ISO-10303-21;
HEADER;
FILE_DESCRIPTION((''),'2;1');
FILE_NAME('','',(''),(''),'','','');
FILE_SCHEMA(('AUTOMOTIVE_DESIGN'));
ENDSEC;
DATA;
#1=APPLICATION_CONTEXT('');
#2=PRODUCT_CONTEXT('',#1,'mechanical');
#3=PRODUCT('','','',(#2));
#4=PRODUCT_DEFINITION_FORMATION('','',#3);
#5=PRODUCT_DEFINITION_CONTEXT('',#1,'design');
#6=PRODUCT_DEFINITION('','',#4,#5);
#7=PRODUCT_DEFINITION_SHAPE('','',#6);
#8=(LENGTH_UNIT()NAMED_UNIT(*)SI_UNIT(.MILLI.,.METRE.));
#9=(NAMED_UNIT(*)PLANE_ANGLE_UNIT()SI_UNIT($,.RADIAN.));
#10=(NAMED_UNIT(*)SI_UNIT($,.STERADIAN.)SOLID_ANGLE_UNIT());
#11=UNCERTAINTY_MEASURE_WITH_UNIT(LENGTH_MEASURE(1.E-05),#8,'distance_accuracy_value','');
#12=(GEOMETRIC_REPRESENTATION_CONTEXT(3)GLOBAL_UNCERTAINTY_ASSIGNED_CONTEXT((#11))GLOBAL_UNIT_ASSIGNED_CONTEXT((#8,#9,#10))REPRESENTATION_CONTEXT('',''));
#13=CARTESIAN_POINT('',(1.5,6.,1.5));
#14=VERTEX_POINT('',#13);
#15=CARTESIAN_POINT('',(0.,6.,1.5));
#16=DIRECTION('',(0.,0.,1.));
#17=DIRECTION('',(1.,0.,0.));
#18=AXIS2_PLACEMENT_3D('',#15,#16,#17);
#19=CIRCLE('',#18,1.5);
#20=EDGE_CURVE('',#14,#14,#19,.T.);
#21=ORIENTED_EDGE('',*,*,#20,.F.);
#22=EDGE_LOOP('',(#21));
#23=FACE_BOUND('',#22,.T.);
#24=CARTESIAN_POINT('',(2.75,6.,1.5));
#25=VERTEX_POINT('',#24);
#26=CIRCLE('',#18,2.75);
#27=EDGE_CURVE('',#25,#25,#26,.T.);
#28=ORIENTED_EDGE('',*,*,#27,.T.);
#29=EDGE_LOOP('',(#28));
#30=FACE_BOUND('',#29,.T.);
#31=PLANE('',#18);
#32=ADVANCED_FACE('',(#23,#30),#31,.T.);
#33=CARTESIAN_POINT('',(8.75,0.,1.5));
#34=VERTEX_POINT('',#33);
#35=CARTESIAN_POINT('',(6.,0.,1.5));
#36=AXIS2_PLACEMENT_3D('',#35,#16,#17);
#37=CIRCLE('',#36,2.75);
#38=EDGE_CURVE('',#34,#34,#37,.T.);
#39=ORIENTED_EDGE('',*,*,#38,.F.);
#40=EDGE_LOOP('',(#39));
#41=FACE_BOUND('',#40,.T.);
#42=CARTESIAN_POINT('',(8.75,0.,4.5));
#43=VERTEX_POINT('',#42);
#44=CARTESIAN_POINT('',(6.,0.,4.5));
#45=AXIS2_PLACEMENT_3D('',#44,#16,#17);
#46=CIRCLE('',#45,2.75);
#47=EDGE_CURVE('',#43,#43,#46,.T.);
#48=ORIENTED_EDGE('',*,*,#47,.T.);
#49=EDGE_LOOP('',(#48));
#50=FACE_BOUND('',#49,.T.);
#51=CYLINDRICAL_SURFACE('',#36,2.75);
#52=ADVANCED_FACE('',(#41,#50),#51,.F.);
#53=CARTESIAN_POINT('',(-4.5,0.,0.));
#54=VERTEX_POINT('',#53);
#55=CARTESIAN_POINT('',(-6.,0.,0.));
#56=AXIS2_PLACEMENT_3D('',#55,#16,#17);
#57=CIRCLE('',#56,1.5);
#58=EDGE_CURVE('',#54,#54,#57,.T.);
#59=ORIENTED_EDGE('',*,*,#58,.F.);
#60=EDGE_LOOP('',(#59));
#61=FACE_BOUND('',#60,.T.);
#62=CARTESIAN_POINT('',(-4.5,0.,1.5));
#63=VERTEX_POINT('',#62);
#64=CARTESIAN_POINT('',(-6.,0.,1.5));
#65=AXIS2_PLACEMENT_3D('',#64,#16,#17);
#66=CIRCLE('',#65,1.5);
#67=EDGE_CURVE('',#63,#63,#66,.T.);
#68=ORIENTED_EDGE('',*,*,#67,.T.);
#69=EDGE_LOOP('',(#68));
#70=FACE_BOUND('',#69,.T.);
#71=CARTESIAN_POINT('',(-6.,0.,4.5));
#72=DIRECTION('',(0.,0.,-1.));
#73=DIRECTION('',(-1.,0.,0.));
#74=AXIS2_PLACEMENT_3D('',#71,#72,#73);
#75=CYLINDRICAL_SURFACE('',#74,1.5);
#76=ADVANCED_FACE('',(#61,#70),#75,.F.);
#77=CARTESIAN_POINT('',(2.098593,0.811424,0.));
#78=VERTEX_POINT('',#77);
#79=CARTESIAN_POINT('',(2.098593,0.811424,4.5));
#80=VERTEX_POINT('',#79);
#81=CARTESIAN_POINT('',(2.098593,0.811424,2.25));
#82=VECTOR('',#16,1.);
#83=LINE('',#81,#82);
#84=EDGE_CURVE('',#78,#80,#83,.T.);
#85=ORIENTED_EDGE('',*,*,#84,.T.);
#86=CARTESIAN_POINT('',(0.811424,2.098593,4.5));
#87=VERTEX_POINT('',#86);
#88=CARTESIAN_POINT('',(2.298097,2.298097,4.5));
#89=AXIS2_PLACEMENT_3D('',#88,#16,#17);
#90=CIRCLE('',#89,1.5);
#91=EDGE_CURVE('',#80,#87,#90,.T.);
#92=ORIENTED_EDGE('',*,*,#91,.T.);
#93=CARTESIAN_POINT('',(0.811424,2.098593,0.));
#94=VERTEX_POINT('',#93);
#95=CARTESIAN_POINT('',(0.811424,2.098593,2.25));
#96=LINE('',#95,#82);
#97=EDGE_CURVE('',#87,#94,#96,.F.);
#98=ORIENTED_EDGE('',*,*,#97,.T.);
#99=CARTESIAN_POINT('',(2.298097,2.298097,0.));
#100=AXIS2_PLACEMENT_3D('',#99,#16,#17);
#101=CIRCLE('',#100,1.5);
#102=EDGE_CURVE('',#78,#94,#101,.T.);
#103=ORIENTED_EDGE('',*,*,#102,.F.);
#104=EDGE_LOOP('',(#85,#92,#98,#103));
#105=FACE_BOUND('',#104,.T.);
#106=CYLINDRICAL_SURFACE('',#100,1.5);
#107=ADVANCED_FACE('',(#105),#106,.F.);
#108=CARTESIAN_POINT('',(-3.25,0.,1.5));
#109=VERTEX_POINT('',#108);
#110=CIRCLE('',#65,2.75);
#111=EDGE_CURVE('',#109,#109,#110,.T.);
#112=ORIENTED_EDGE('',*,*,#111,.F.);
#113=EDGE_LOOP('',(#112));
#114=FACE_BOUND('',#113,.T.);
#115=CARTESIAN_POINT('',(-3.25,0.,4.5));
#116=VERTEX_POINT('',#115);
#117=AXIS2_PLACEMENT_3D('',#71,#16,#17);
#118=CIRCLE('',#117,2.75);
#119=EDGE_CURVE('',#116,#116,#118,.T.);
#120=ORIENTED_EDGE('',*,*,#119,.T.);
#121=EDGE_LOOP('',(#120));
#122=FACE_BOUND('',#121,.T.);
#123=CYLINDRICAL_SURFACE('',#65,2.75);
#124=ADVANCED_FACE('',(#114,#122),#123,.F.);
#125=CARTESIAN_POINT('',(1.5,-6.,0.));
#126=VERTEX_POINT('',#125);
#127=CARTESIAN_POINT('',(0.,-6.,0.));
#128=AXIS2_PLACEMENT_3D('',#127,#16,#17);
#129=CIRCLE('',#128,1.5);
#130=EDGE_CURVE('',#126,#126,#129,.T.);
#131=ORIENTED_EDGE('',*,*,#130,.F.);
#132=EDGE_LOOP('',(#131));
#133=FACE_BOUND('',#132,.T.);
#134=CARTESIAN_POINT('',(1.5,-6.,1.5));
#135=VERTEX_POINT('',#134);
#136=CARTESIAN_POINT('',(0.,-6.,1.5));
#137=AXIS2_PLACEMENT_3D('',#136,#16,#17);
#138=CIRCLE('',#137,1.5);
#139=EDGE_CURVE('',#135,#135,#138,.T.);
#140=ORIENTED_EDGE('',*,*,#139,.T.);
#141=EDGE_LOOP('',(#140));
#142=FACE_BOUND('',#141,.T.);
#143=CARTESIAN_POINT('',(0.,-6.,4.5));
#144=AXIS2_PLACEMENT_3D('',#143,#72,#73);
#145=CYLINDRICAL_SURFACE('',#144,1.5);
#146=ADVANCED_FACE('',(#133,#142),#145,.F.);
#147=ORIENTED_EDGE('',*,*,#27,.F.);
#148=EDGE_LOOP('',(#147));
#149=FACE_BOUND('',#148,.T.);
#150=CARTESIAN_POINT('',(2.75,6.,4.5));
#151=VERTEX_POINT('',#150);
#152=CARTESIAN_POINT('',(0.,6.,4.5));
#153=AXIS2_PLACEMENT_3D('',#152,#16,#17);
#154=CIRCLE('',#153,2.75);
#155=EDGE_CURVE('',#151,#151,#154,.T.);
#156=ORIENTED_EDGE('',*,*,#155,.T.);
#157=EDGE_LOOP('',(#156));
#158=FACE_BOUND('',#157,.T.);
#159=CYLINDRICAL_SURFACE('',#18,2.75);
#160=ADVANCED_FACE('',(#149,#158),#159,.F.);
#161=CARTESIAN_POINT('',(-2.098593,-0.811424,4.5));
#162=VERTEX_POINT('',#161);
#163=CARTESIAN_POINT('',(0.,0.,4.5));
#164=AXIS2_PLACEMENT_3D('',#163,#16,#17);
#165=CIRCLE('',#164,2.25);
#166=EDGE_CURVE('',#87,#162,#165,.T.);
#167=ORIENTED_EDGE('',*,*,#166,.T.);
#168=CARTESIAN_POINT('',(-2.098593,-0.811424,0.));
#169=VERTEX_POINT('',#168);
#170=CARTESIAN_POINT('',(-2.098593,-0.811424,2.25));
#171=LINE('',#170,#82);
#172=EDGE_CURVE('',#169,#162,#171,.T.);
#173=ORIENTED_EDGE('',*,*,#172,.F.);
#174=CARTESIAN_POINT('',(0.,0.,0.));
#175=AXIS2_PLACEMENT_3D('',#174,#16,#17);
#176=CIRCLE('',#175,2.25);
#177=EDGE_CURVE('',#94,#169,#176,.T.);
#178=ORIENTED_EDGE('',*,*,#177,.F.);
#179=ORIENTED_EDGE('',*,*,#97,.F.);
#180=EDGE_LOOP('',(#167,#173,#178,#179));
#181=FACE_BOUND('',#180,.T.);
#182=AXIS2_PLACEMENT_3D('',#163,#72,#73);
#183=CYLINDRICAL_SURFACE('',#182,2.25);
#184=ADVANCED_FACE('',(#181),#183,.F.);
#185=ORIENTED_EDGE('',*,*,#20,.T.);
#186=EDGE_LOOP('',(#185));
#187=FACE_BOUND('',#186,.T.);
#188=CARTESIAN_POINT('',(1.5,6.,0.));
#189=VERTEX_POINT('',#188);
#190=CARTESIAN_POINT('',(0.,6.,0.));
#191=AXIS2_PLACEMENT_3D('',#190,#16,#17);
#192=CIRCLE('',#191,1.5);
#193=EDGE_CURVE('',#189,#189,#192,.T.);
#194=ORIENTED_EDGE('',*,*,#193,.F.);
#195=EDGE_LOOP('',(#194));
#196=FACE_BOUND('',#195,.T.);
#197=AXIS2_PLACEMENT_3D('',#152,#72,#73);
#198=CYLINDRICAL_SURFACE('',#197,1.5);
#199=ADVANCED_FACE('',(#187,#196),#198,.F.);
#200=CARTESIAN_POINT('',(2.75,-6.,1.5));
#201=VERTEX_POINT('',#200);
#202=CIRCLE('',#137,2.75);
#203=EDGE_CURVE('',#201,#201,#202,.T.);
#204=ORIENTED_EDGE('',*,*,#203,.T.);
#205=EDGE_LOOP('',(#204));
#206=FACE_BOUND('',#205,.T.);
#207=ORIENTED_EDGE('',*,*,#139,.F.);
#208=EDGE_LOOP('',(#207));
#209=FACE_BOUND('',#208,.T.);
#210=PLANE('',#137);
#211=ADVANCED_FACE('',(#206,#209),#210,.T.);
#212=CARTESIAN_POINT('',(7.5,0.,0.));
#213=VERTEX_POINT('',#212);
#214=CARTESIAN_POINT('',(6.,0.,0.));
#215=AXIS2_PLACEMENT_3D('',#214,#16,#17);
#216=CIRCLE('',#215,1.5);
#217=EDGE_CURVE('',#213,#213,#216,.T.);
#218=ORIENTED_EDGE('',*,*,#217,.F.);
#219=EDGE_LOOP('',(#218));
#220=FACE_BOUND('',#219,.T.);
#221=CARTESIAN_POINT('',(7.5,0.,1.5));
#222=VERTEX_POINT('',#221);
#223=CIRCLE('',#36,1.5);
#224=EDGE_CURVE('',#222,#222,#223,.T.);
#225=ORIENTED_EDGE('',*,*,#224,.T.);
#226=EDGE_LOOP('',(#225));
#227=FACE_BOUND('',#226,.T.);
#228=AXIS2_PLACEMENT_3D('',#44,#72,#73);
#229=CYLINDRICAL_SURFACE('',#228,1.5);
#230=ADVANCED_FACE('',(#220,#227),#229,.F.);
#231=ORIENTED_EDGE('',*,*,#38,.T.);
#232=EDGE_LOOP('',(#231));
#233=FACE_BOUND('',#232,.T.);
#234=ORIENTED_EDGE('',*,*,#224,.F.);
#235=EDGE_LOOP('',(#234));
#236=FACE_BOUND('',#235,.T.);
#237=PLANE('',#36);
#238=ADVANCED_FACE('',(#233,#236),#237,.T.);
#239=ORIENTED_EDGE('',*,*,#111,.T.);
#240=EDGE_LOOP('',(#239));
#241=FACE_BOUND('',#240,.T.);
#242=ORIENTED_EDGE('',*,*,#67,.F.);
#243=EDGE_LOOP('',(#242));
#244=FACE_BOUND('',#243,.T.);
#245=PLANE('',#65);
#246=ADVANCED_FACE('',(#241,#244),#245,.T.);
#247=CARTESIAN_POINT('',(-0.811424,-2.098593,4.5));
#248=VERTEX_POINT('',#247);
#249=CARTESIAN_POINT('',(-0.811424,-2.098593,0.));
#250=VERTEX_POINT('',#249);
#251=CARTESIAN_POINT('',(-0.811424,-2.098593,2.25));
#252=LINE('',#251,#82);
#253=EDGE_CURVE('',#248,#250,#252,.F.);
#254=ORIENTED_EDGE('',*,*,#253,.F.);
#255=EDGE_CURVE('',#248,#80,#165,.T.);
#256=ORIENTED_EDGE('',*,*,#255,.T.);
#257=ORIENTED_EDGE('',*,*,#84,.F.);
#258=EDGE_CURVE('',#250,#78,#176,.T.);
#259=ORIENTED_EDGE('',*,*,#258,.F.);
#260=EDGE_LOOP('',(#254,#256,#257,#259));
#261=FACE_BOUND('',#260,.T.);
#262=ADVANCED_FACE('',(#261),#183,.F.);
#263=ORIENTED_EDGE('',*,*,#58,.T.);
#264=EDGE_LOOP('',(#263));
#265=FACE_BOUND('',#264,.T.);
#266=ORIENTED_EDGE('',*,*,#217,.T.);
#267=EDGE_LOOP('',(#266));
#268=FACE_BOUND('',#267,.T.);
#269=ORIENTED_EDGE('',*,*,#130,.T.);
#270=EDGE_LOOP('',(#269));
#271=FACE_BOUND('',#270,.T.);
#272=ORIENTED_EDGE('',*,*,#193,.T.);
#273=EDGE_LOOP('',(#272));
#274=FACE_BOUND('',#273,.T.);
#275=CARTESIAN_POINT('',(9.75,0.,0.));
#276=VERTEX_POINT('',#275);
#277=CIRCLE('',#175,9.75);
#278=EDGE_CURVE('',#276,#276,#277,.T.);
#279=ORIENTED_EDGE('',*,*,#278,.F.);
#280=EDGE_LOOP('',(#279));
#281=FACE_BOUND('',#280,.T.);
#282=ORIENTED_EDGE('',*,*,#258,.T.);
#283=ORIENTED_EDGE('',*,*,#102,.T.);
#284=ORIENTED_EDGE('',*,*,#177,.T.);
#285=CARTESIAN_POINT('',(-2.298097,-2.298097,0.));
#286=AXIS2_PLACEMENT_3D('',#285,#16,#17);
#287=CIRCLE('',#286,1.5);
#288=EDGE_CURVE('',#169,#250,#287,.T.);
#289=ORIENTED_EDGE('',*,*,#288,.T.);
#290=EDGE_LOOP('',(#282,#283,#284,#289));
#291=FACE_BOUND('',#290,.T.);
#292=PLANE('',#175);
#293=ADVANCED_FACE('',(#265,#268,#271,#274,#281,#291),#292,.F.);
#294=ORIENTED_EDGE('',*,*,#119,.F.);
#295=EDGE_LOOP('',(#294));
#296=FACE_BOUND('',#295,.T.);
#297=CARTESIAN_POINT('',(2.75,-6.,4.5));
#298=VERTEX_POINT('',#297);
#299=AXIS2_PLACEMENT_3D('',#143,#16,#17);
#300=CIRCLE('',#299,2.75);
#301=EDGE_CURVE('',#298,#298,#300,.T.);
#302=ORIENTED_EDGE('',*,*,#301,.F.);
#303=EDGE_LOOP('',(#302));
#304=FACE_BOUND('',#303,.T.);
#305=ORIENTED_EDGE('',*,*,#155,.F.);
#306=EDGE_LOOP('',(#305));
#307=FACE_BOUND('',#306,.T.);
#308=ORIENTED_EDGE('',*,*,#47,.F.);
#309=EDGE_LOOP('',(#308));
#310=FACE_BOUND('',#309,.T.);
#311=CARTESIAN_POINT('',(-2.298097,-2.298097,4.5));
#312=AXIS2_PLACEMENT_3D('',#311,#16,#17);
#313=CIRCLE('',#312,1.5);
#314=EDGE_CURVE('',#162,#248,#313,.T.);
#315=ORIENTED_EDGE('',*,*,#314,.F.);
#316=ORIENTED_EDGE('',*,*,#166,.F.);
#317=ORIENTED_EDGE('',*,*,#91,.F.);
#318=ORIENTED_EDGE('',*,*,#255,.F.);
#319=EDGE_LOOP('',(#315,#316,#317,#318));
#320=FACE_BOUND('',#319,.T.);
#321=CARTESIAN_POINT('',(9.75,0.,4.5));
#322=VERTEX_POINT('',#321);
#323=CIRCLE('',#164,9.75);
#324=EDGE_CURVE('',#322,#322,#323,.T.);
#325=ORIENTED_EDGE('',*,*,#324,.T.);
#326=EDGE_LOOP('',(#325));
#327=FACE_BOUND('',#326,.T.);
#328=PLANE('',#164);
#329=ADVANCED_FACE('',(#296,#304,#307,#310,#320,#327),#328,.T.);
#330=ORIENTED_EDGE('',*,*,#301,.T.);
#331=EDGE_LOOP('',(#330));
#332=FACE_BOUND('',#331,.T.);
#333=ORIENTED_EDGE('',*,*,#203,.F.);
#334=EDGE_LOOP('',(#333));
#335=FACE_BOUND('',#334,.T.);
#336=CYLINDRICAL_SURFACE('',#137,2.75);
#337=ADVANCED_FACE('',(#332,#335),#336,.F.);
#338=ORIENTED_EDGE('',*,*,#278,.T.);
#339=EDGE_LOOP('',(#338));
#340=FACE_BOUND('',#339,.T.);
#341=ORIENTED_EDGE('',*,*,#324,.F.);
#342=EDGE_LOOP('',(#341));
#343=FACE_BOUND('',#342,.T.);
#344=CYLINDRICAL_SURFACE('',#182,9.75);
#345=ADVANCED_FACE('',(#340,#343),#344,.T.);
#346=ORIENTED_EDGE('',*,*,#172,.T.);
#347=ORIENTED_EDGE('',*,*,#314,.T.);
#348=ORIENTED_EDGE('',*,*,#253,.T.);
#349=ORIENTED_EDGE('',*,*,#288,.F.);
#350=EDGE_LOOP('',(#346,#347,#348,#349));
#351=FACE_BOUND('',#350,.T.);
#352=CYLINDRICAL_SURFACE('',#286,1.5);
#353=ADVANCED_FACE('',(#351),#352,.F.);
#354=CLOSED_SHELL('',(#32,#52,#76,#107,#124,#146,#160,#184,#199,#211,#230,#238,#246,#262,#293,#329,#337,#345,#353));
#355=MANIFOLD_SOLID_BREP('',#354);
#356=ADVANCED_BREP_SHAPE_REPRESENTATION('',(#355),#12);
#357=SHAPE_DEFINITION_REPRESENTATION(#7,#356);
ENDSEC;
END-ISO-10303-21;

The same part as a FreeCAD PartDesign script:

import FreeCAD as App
import Part
import Sketcher

V = App.Vector

doc = App.newDocument("Part")
body = doc.addObject("PartDesign::Body", "Body")

# Sketch on XY plane
sketch1 = body.newObject("Sketcher::SketchObject", "Sketch")
sketch1.AttachmentSupport = (doc.getObject("XY_Plane"), [""])
sketch1.MapMode = "FlatFace"
sketch1.addGeometry([
    Part.Circle(V(0, 0, 0), V(0, 0, 1), 9.8),  # 0
    Part.Circle(V(0, -6, 0), V(0, 0, 1), 1.5),  # 1
    Part.Circle(V(-6, 0, 0), V(0, 0, 1), 1.5),  # 2
    Part.Circle(V(0, 0, 0), V(0, 0, 1), 2.2),  # 3
    Part.Circle(V(6, 0, 0), V(0, 0, 1), 1.5),  # 4
    Part.Circle(V(0, 6, 0), V(0, 0, 1), 1.5),  # 5
], False)
sketch1.addConstraint([
    Sketcher.Constraint("Coincident", 0, 3, -1, 1),
    Sketcher.Constraint("Coincident", 3, 3, -1, 1),
    Sketcher.Constraint("Equal", 1, 2),
    Sketcher.Constraint("Equal", 2, 4),
    Sketcher.Constraint("Equal", 4, 5),
    Sketcher.Constraint("Symmetric", 2, 3, 4, 3, -1, 1),
    Sketcher.Constraint("Symmetric", 1, 3, 5, 3, -1, 1),
    Sketcher.Constraint("PointOnObject", 1, 3, -2),
    Sketcher.Constraint("PointOnObject", 2, 3, -1),
    Sketcher.Constraint("Diameter", 1, 3.0),
    Sketcher.Constraint("Diameter", 0, 19.5),
    Sketcher.Constraint("Diameter", 3, 4.5),
    Sketcher.Constraint("DistanceY", 1, 3, -1, 1, 6.0),
    Sketcher.Constraint("DistanceX", 2, 3, -1, 1, 6.0),
])
pad1 = body.newObject("PartDesign::Pad", "Pad")
pad1.Profile = sketch1
pad1.Length = 4.5

# Sketch on XY plane
sketch2 = body.newObject("Sketcher::SketchObject", "Sketch001")
sketch2.AttachmentSupport = (doc.getObject("XY_Plane"), [""])
sketch2.MapMode = "FlatFace"
sketch2.AttachmentOffset = App.Placement(V(0, 0, 4.5), App.Rotation())
sketch2.addGeometry([
    Part.Circle(V(2.3, 2.3, 0), V(0, 0, 1), 1.5),
    Part.Circle(V(-2.3, -2.3, 0), V(0, 0, 1), 1.5),
], False)
sketch2.addConstraint([
    Sketcher.Constraint("Equal", 0, 1),
    Sketcher.Constraint("Symmetric", 0, 3, 1, 3, -1, 1),
    Sketcher.Constraint("Diameter", 0, 3.0),
    Sketcher.Constraint("DistanceX", -1, 1, 0, 3, 2.298097),
    Sketcher.Constraint("DistanceY", -1, 1, 0, 3, 2.298097),
])
pocket1 = body.newObject("PartDesign::Pocket", "Pocket")
pocket1.Profile = sketch2
pocket1.Type = "ThroughAll"

# Sketch on XY plane
sketch3 = body.newObject("Sketcher::SketchObject", "Sketch002")
sketch3.AttachmentSupport = (doc.getObject("XY_Plane"), [""])
sketch3.MapMode = "FlatFace"
sketch3.AttachmentOffset = App.Placement(V(0, 0, 4.5), App.Rotation())
sketch3.addGeometry([
    Part.Circle(V(6, 0, 0), V(0, 0, 1), 2.8),
    Part.Circle(V(0, -6, 0), V(0, 0, 1), 2.8),
    Part.Circle(V(-6, 0, 0), V(0, 0, 1), 2.8),
    Part.Circle(V(0, 6, 0), V(0, 0, 1), 2.8),
], False)
sketch3.addConstraint([
    Sketcher.Constraint("Equal", 0, 1),
    Sketcher.Constraint("Equal", 1, 2),
    Sketcher.Constraint("Equal", 2, 3),
    Sketcher.Constraint("Symmetric", 0, 3, 2, 3, -1, 1),
    Sketcher.Constraint("Symmetric", 1, 3, 3, 3, -1, 1),
    Sketcher.Constraint("PointOnObject", 0, 3, -1),
    Sketcher.Constraint("PointOnObject", 1, 3, -2),
    Sketcher.Constraint("Diameter", 0, 5.5),
    Sketcher.Constraint("DistanceX", -1, 1, 0, 3, 6.0),
    Sketcher.Constraint("DistanceY", 1, 3, -1, 1, 6.0),
])
pocket2 = body.newObject("PartDesign::Pocket", "Pocket001")
pocket2.Profile = sketch3
pocket2.Length = 3

doc.recompute()
